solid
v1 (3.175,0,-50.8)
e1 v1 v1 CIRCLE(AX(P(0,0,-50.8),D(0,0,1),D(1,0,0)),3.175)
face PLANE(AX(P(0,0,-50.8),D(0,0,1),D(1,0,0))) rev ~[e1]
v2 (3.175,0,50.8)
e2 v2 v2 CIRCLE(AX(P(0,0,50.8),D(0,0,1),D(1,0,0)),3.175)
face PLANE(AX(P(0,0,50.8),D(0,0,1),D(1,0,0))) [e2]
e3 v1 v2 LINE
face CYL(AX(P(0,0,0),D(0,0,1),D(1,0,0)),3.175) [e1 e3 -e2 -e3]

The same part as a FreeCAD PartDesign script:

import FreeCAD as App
import Part
import Sketcher

V = App.Vector
Q = App.Units.Quantity

doc = App.newDocument("Part")
body = doc.addObject("PartDesign::Body", "Body")

# Sketch on XY plane
sketch1 = body.newObject("Sketcher::SketchObject", "Sketch")
sketch1.AttachmentSupport = (doc.getObject("XY_Plane"), [""])
sketch1.MapMode = "FlatFace"
sketch1.addGeometry(Part.Circle(V(0, 0, 0), V(0, 0, 1), 3.2), False)
sketch1.addConstraint(Sketcher.Constraint("Coincident", 0, 3, -1, 1))
sketch1.addConstraint(Sketcher.Constraint("Diameter", 0, Q("0.25 in")))
pad1 = body.newObject("PartDesign::Pad", "Pad")
pad1.Profile = sketch1
pad1.Length = Q("4 in")
pad1.Midplane = True

doc.recompute()
